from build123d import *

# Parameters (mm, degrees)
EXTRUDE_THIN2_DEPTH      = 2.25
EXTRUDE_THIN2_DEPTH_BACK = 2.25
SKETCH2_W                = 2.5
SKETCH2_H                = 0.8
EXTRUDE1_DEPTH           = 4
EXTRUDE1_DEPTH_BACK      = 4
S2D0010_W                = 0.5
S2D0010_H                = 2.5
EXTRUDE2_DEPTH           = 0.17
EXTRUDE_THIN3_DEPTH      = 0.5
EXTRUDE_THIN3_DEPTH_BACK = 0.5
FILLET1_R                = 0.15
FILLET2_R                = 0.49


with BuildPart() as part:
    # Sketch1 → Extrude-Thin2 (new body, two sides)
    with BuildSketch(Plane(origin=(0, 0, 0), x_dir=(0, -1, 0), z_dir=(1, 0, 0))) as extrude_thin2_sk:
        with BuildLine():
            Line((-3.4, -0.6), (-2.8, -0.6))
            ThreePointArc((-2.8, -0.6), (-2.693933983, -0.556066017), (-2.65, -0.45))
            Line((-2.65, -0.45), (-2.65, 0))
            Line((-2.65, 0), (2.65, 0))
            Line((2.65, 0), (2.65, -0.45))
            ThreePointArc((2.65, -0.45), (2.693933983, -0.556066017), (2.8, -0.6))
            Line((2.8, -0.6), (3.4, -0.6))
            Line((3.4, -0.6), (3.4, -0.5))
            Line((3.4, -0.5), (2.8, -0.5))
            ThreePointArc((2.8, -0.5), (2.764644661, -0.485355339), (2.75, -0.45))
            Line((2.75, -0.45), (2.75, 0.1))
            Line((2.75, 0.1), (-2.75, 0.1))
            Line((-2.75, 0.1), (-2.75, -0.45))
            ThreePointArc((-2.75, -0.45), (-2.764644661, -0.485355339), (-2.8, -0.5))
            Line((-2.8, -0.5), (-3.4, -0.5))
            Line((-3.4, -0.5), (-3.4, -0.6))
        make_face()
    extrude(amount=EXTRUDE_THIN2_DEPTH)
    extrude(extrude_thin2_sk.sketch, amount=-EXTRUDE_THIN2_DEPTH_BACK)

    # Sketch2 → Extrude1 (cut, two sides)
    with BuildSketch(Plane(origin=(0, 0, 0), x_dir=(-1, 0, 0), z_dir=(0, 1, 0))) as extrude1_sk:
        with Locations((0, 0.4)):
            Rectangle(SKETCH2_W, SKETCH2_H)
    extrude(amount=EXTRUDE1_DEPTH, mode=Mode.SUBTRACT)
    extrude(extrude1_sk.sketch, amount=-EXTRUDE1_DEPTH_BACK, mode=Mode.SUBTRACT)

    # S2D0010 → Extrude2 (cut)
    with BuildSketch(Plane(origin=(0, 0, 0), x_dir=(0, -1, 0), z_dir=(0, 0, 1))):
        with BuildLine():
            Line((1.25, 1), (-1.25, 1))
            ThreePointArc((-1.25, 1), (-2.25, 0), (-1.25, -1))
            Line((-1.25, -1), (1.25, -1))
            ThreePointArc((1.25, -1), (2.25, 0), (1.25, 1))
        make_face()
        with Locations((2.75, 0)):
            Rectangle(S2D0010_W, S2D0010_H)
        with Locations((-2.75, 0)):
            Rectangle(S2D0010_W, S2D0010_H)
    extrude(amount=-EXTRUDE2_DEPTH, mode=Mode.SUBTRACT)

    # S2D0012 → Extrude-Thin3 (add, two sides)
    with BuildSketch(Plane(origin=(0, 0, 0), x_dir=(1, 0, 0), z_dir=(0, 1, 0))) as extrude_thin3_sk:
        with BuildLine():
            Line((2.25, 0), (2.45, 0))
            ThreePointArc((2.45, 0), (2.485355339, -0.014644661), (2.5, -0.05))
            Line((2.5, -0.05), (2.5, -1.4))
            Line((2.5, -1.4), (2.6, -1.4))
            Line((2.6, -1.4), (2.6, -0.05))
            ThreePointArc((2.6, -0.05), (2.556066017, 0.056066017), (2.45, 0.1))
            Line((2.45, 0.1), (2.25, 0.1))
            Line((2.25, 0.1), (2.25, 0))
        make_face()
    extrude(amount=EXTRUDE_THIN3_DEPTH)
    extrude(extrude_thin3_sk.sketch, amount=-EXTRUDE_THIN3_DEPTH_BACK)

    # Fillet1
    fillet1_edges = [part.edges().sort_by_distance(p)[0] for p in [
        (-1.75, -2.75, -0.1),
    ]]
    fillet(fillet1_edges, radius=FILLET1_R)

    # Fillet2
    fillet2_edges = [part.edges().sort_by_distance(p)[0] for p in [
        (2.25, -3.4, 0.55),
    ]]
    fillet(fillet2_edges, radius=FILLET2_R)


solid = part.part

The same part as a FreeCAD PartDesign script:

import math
import FreeCAD as App
import Part
import Sketcher

V = App.Vector
Q = App.Units.Quantity


def edges_at(feature, points):
    """Names of the edges that pass closest to the given points."""
    edges = feature.Shape.Edges
    near = lambda p: min(range(len(edges)), key=lambda i: edges[i].distToShape(Part.Vertex(*p))[0])
    return sorted({f"Edge{near(p) + 1}" for p in points})


def add_polygon(sketch, points):
    """Adds a closed chain of lines whose ends are joined by coincident constraints."""
    first, n = sketch.GeometryCount, len(points)
    for a, b in zip(points, points[1:] + points[:1]):
        sketch.addGeometry(Part.LineSegment(App.Vector(*a, 0), App.Vector(*b, 0)), False)
    for i in range(n):
        sketch.addConstraint(Sketcher.Constraint("Coincident", first + i, 2, first + (i + 1) % n, 1))

doc = App.newDocument("Part")
body = doc.addObject("PartDesign::Body", "Body")

sketch1 = body.newObject("Sketcher::SketchObject", "Sketch")
sketch1.AttachmentSupport = (doc.getObject("YZ_Plane"), [""])
sketch1.MapMode = "FlatFace"
sketch1.addGeometry([
    Part.LineSegment(V(3.4, 0.6, 0), V(2.8, 0.6, 0)),
    Part.ArcOfCircle(Part.Circle(V(2.8, 0.45, 0), V(0, 0, 1), 0.15), math.radians(90), math.radians(180)),
    Part.LineSegment(V(2.65, 0.45, 0), V(2.65, 0, 0)),
    Part.LineSegment(V(2.65, 0, 0), V(-2.65, 0, 0)),
    Part.LineSegment(V(-2.65, 0, 0), V(-2.65, 0.45, 0)),
    Part.ArcOfCircle(Part.Circle(V(-2.8, 0.45, 0), V(0, 0, 1), 0.15), math.radians(0), math.radians(90)),
    Part.LineSegment(V(-2.8, 0.6, 0), V(-3.4, 0.6, 0)),
    Part.LineSegment(V(-3.4, 0.6, 0), V(-3.4, 0.5, 0)),
    Part.LineSegment(V(-3.4, 0.5, 0), V(-2.8, 0.5, 0)),
    Part.ArcOfCircle(Part.Circle(V(-2.8, 0.45, 0), V(0, 0, 1), 0.05), math.radians(0), math.radians(90)),
    Part.LineSegment(V(-2.75, 0.45, 0), V(-2.75, -0.1, 0)),
    Part.LineSegment(V(-2.75, -0.1, 0), V(2.75, -0.1, 0)),
    Part.LineSegment(V(2.75, -0.1, 0), V(2.75, 0.45, 0)),
    Part.ArcOfCircle(Part.Circle(V(2.8, 0.45, 0), V(0, 0, 1), 0.05), math.radians(90), math.radians(180)),
    Part.LineSegment(V(2.8, 0.5, 0), V(3.4, 0.5, 0)),
    Part.LineSegment(V(3.4, 0.5, 0), V(3.4, 0.6, 0)),
], False)
sketch1.addConstraint([
    Sketcher.Constraint("Tangent", 0, 2, 1, 1),
    Sketcher.Constraint("Tangent", 1, 2, 2, 1),
    Sketcher.Constraint("Coincident", 2, 2, 3, 1),
    Sketcher.Constraint("Coincident", 3, 2, 4, 1),
    Sketcher.Constraint("Tangent", 4, 2, 5, 1),
    Sketcher.Constraint("Tangent", 5, 2, 6, 1),
    Sketcher.Constraint("Coincident", 6, 2, 7, 1),
    Sketcher.Constraint("Coincident", 7, 2, 8, 1),
    Sketcher.Constraint("Tangent", 8, 2, 9, 2),
    Sketcher.Constraint("Tangent", 9, 1, 10, 1),
    Sketcher.Constraint("Coincident", 10, 2, 11, 1),
    Sketcher.Constraint("Coincident", 11, 2, 12, 1),
    Sketcher.Constraint("Tangent", 12, 2, 13, 2),
    Sketcher.Constraint("Tangent", 13, 1, 14, 1),
    Sketcher.Constraint("Coincident", 14, 2, 15, 1),
    Sketcher.Constraint("Coincident", 15, 2, 0, 1),
    Sketcher.Constraint("Horizontal", 0),
    Sketcher.Constraint("Vertical", 2),
    Sketcher.Constraint("Horizontal", 3),
    Sketcher.Constraint("Vertical", 4),
    Sketcher.Constraint("Horizontal", 6),
    Sketcher.Constraint("Vertical", 7),
    Sketcher.Constraint("Horizontal", 8),
    Sketcher.Constraint("Vertical", 10),
    Sketcher.Constraint("Horizontal", 11),
    Sketcher.Constraint("Vertical", 12),
    Sketcher.Constraint("Horizontal", 14),
    Sketcher.Constraint("Vertical", 15),
    Sketcher.Constraint("Coincident", 9, 3, 5, 3),
    Sketcher.Constraint("Coincident", 13, 3, 1, 3),
    Sketcher.Constraint("Equal", 1, 5),
    Sketcher.Constraint("Equal", 9, 13),
    Sketcher.Constraint("Symmetric", 2, 2, 3, 2, -1, 1),
    Sketcher.Constraint("Symmetric", 7, 2, 14, 2, -2),
    Sketcher.Constraint("Radius", 1, Q("0.15 mm")),
    Sketcher.Constraint("Radius", 9, Q("0.05 mm")),
    Sketcher.Constraint("DistanceX", 0, 2, 0, 1, Q("0.6 mm")),
    Sketcher.Constraint("DistanceX", 3, 2, 3, 1, Q("5.3 mm")),
    Sketcher.Constraint("DistanceY", 2, 2, 2, 1, Q("0.45 mm")),
    Sketcher.Constraint("DistanceY", 10, 2, 10, 1, Q("0.55 mm")),
])
pad1 = body.newObject("PartDesign::Pad", "Pad")
pad1.Profile = sketch1
pad1.Type = "TwoLengths"
pad1.Length = 2.25
pad1.Length2 = 2.25

sketch2 = body.newObject("Sketcher::SketchObject", "Sketch001")
sketch2.AttachmentSupport = (doc.getObject("XZ_Plane"), [""])
sketch2.MapMode = "FlatFace"
add_polygon(sketch2, [(1.2, 0.8), (1.2, 0), (-1.2, 0), (-1.2, 0.8)])
sketch2.addConstraint([
    Sketcher.Constraint("Vertical", 0),
    Sketcher.Constraint("Horizontal", 1),
    Sketcher.Constraint("Vertical", 2),
    Sketcher.Constraint("Horizontal", 3),
    Sketcher.Constraint("Symmetric", 0, 2, 1, 2, -1, 1),
    Sketcher.Constraint("DistanceX", 1, 2, 1, 1, Q("2.5 mm")),
    Sketcher.Constraint("DistanceY", 0, 2, 0, 1, Q("0.8 mm")),
])
pocket1 = body.newObject("PartDesign::Pocket", "Pocket")
pocket1.Profile = sketch2
pocket1.Type = "ThroughAll"
pocket1.Midplane = True

sketch3 = body.newObject("Sketcher::SketchObject", "Sketch002")
sketch3.AttachmentSupport = (doc.getObject("XY_Plane"), [""])
sketch3.MapMode = "FlatFace"
sketch3.addGeometry(Part.LineSegment(V(1, -1.2, 0), V(1, 1.2, 0)), False)
sketch3.addGeometry(Part.ArcOfCircle(Part.Circle(V(0, 1.2, 0), V(0, 0, 1), 1), math.radians(0), math.radians(180)), False)
sketch3.addGeometry(Part.LineSegment(V(-1, 1.2, 0), V(-1, -1.2, 0)), False)
sketch3.addGeometry(Part.ArcOfCircle(Part.Circle(V(0, -1.2, 0), V(0, 0, 1), 1), math.radians(180), math.radians(360)), False)
add_polygon(sketch3, [(1.2, -2.5), (-1.2, -2.5), (-1.2, -3), (1.2, -3)])
add_polygon(sketch3, [(1.2, 3), (-1.2, 3), (-1.2, 2.5), (1.2, 2.5)])
sketch3.addConstraint([
    Sketcher.Constraint("Tangent", 0, 2, 1, 1),
    Sketcher.Constraint("Tangent", 1, 2, 2, 1),
    Sketcher.Constraint("Tangent", 2, 2, 3, 1),
    Sketcher.Constraint("Tangent", 3, 2, 0, 1),
    Sketcher.Constraint("Vertical", 0),
    Sketcher.Constraint("Vertical", 2),
    Sketcher.Constraint("Horizontal", 4),
    Sketcher.Constraint("Vertical", 5),
    Sketcher.Constraint("Horizontal", 6),
    Sketcher.Constraint("Vertical", 7),
    Sketcher.Constraint("Horizontal", 8),
    Sketcher.Constraint("Vertical", 9),
    Sketcher.Constraint("Horizontal", 10),
    Sketcher.Constraint("Vertical", 11),
    Sketcher.Constraint("Symmetric", 1, 3, 3, 3, -1, 1),
    Sketcher.Constraint("Symmetric", 6, 2, 8, 2, -1, 1),
    Sketcher.Constraint("Symmetric", 4, 2, 10, 2, -1, 1),
    Sketcher.Constraint("Vertical", 5, 2, 8, 2),
    Sketcher.Constraint("Equal", 10, 0),
    Sketcher.Constraint("Radius", 1, Q("1 mm")),
    Sketcher.Constraint("DistanceX", 4, 2, 4, 1, Q("2.5 mm")),
    Sketcher.Constraint("DistanceY", 5, 2, 5, 1, Q("0.5 mm")),
    Sketcher.Constraint("DistanceY", 5, 2, -1, 1, Q("3 mm")),
])
pocket2 = body.newObject("PartDesign::Pocket", "Pocket001")
pocket2.Profile = sketch3
pocket2.Length = 0.17

sketch4 = body.newObject("Sketcher::SketchObject", "Sketch003")
sketch4.AttachmentSupport = (doc.getObject("XZ_Plane"), [""])
sketch4.MapMode = "FlatFace"
sketch4.addGeometry([
    Part.LineSegment(V(2.25, 0, 0), V(2.45, 0, 0)),
    Part.ArcOfCircle(Part.Circle(V(2.45, 0.05, 0), V(0, 0, 1), 0.05), math.radians(-90), math.radians(0)),
    Part.LineSegment(V(2.5, 0.05, 0), V(2.5, 1.4, 0)),
    Part.LineSegment(V(2.5, 1.4, 0), V(2.6, 1.4, 0)),
    Part.LineSegment(V(2.6, 1.4, 0), V(2.6, 0.05, 0)),
    Part.ArcOfCircle(Part.Circle(V(2.45, 0.05, 0), V(0, 0, 1), 0.15), math.radians(-90), math.radians(0)),
    Part.LineSegment(V(2.45, -0.1, 0), V(2.25, -0.1, 0)),
    Part.LineSegment(V(2.25, -0.1, 0), V(2.25, 0, 0)),
], False)
sketch4.addConstraint([
    Sketcher.Constraint("Tangent", 0, 2, 1, 1),
    Sketcher.Constraint("Tangent", 1, 2, 2, 1),
    Sketcher.Constraint("Coincident", 2, 2, 3, 1),
    Sketcher.Constraint("Coincident", 3, 2, 4, 1),
    Sketcher.Constraint("Tangent", 4, 2, 5, 2),
    Sketcher.Constraint("Tangent", 5, 1, 6, 1),
    Sketcher.Constraint("Coincident", 6, 2, 7, 1),
    Sketcher.Constraint("Coincident", 7, 2, 0, 1),
    Sketcher.Constraint("Horizontal", 0),
    Sketcher.Constraint("Vertical", 2),
    Sketcher.Constraint("Horizontal", 3),
    Sketcher.Constraint("Vertical", 4),
    Sketcher.Constraint("Horizontal", 6),
    Sketcher.Constraint("Vertical", 7),
    Sketcher.Constraint("Coincident", 5, 3, 1, 3),
    Sketcher.Constraint("PointOnObject", 0, 2, -1),
    Sketcher.Constraint("Radius", 1, Q("0.05 mm")),
    Sketcher.Constraint("Radius", 5, Q("0.15 mm")),
    Sketcher.Constraint("DistanceX", 0, 1, 0, 2, Q("0.2 mm")),
    Sketcher.Constraint("DistanceY", 2, 1, 2, 2, Q("1.35 mm")),
    Sketcher.Constraint("DistanceX", -1, 1, 1, 2, Q("2.5 mm")),
])
pad2 = body.newObject("PartDesign::Pad", "Pad001")
pad2.Profile = sketch4
pad2.Type = "TwoLengths"
pad2.Length = 0.5
pad2.Length2 = 0.5
pad2.Reversed = True
doc.recompute()

fillet = body.newObject("PartDesign::Fillet", "Fillet")
fillet.Base = (pad2, edges_at(pad2, [(-1.75, -2.75, -0.1)]))
fillet.Radius = 0.15
doc.recompute()

fillet2 = body.newObject("PartDesign::Fillet", "Fillet001")
fillet2.Base = (fillet, edges_at(fillet, [(2.25, -3.4, 0.55)]))
fillet2.Radius = 0.49

doc.recompute()
